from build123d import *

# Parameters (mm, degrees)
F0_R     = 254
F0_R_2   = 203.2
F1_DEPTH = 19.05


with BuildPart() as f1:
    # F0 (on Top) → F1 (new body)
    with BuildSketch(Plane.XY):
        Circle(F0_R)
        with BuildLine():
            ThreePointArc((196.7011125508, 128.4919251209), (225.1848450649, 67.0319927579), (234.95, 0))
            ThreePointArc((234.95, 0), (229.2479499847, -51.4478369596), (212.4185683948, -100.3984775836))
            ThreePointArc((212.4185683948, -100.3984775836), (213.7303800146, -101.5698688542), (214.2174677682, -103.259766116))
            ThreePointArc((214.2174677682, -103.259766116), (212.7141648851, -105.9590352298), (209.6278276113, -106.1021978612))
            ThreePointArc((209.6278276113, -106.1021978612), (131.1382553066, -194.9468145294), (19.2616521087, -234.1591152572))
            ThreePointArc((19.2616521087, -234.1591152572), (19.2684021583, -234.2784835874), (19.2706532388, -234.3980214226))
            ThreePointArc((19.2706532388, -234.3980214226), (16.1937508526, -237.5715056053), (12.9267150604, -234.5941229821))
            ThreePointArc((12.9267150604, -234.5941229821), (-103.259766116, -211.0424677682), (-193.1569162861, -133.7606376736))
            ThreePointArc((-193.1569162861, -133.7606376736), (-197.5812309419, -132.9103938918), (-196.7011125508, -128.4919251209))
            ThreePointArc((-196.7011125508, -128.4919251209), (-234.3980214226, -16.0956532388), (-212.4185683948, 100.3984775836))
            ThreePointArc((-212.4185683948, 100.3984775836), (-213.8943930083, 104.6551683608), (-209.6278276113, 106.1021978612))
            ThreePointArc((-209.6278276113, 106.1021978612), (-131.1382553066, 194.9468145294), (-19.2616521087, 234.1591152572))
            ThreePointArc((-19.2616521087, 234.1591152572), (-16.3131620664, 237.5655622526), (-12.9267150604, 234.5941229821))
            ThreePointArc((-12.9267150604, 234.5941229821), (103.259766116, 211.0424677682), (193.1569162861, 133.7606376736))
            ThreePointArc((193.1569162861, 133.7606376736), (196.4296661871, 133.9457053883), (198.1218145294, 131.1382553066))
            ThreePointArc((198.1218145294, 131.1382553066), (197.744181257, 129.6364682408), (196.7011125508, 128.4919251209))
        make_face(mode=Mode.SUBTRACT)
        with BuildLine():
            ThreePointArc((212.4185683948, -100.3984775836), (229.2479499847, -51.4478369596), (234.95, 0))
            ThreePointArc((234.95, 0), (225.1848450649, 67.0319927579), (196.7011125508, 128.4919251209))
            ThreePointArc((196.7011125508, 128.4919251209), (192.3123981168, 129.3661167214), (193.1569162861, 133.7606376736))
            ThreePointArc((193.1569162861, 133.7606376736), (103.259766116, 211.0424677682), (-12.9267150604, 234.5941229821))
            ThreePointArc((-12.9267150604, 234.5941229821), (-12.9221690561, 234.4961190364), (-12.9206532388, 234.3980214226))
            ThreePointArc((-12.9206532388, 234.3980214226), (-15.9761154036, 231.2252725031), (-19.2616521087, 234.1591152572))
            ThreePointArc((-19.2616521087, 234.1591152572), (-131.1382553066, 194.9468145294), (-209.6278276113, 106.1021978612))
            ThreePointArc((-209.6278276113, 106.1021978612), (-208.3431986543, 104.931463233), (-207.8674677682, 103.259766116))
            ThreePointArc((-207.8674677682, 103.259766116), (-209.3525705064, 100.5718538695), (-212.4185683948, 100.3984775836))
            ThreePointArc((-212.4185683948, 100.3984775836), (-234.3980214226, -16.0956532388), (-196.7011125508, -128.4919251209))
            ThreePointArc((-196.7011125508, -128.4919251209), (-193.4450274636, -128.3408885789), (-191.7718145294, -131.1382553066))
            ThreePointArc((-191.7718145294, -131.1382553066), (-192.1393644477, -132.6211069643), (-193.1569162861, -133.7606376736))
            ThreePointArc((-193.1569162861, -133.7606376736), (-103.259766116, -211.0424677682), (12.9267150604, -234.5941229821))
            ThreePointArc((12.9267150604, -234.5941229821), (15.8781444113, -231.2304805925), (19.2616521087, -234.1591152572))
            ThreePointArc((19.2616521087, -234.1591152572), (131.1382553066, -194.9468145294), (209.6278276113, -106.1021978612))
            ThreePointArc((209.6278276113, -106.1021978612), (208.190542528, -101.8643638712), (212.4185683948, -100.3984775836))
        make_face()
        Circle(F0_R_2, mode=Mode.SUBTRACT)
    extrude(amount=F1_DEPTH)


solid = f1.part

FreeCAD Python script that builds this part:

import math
import FreeCAD as App
import Part
import Sketcher

V = App.Vector
Q = App.Units.Quantity

doc = App.newDocument("Part")
body = doc.addObject("PartDesign::Body", "Body")

sketch1 = body.newObject("Sketcher::SketchObject", "Sketch")
sketch1.AttachmentSupport = (doc.getObject("XY_Plane"), [""])
sketch1.MapMode = "FlatFace"
sketch1.addGeometry(Part.Circle(V(0, 0, 0), V(0, 0, 1), 254), False)
sketch1.addGeometry(Part.ArcOfCircle(Part.Circle(V(-194.95, -131.14, 0), V(0, 0, 1), 3.17), math.radians(124), math.radians(304)), False)
sketch1.addGeometry(Part.ArcOfCircle(Part.Circle(V(-194.95, -131.14, 0), V(0, 0, 1), 3.17), math.radians(0), math.radians(124)), False)
sketch1.addGeometry(Part.ArcOfCircle(Part.Circle(V(-194.95, -131.14, 0), V(0, 0, 1), 3.17), math.radians(-56), math.radians(0)), False)
sketch1.addGeometry(Part.ArcOfCircle(Part.Circle(V(16.1, -234.4, 0), V(0, 0, 1), 3.17), math.radians(-176), math.radians(0)), False)
sketch1.addGeometry(Part.ArcOfCircle(Part.Circle(V(16.1, -234.4, 0), V(0, 0, 1), 3.17), math.radians(4), math.radians(184)), False)
sketch1.addGeometry(Part.ArcOfCircle(Part.Circle(V(16.1, -234.4, 0), V(0, 0, 1), 3.17), math.radians(0), math.radians(4.32)), False)
sketch1.addGeometry(Part.Circle(V(0, 0, 0), V(0, 0, 1), 203.2), False)
sketch1.addGeometry(Part.ArcOfCircle(Part.Circle(V(211.04, -103.26, 0), V(0, 0, 1), 3.17), math.radians(-116), math.radians(0)), False)
sketch1.addGeometry(Part.ArcOfCircle(Part.Circle(V(211.04, -103.26, 0), V(0, 0, 1), 3.17), math.radians(64), math.radians(244)), False)
sketch1.addGeometry(Part.ArcOfCircle(Part.Circle(V(211.04, -103.26, 0), V(0, 0, 1), 3.17), math.radians(0), math.radians(64)), False)
sketch1.addGeometry(Part.ArcOfCircle(Part.Circle(V(-211.04, 103.26, 0), V(0, 0, 1), 3.17), math.radians(64), math.radians(244)), False)
sketch1.addGeometry(Part.ArcOfCircle(Part.Circle(V(-211.04, 103.26, 0), V(0, 0, 1), 3.17), math.radians(0), math.radians(64)), False)
sketch1.addGeometry(Part.ArcOfCircle(Part.Circle(V(-211.04, 103.26, 0), V(0, 0, 1), 3.17), math.radians(-116), math.radians(0)), False)
sketch1.addGeometry(Part.ArcOfCircle(Part.Circle(V(-16.1, 234.4, 0), V(0, 0, 1), 3.17), math.radians(4), math.radians(184)), False)
sketch1.addGeometry(Part.ArcOfCircle(Part.Circle(V(-16.1, 234.4, 0), V(0, 0, 1), 3.18), math.radians(0), math.radians(3.54)), False)
sketch1.addGeometry(Part.ArcOfCircle(Part.Circle(V(-16.1, 234.4, 0), V(0, 0, 1), 3.17), math.radians(-176), math.radians(0)), False)
sketch1.addGeometry(Part.ArcOfCircle(Part.Circle(V(194.95, 131.14, 0), V(0, 0, 1), 3.17), math.radians(-56), math.radians(0)), False)
sketch1.addGeometry(Part.ArcOfCircle(Part.Circle(V(194.95, 131.14, 0), V(0, 0, 1), 3.17), math.radians(124), math.radians(304)), False)
sketch1.addGeometry(Part.ArcOfCircle(Part.Circle(V(194.95, 131.14, 0), V(0, 0, 1), 3.17), math.radians(0), math.radians(124)), False)
sketch1.addConstraint(Sketcher.Constraint("Tangent", 1, 1, 2, 2))
sketch1.addConstraint(Sketcher.Constraint("Tangent", 2, 1, 3, 2))
sketch1.addConstraint(Sketcher.Constraint("Tangent", 3, 1, 1, 2))
sketch1.addConstraint(Sketcher.Constraint("Tangent", 4, 1, 5, 2))
sketch1.addConstraint(Sketcher.Constraint("Tangent", 5, 1, 6, 2))
sketch1.addConstraint(Sketcher.Constraint("Tangent", 6, 1, 4, 2))
sketch1.addConstraint(Sketcher.Constraint("Tangent", 8, 1, 9, 2))
sketch1.addConstraint(Sketcher.Constraint("Tangent", 9, 1, 10, 2))
sketch1.addConstraint(Sketcher.Constraint("Tangent", 10, 1, 8, 2))
sketch1.addConstraint(Sketcher.Constraint("Tangent", 11, 1, 12, 2))
sketch1.addConstraint(Sketcher.Constraint("Tangent", 12, 1, 13, 2))
sketch1.addConstraint(Sketcher.Constraint("Tangent", 13, 1, 11, 2))
sketch1.addConstraint(Sketcher.Constraint("Tangent", 14, 1, 15, 2))
sketch1.addConstraint(Sketcher.Constraint("Tangent", 15, 1, 16, 2))
sketch1.addConstraint(Sketcher.Constraint("Tangent", 16, 1, 14, 2))
sketch1.addConstraint(Sketcher.Constraint("Tangent", 17, 1, 18, 2))
sketch1.addConstraint(Sketcher.Constraint("Tangent", 18, 1, 19, 2))
sketch1.addConstraint(Sketcher.Constraint("Tangent", 19, 1, 17, 2))
sketch1.addConstraint(Sketcher.Constraint("Coincident", 0, 3, -1, 1))
sketch1.addConstraint(Sketcher.Constraint("Coincident", 7, 3, -1, 1))
sketch1.addConstraint(Sketcher.Constraint("Equal", 3, 4))
sketch1.addConstraint(Sketcher.Constraint("Equal", 6, 8))
sketch1.addConstraint(Sketcher.Constraint("Equal", 10, 11))
sketch1.addConstraint(Sketcher.Constraint("Equal", 13, 14))
sketch1.addConstraint(Sketcher.Constraint("Equal", 16, 17))
sketch1.addConstraint(Sketcher.Constraint("Symmetric", 8, 3, 11, 3, -1, 1))
sketch1.addConstraint(Sketcher.Constraint("Symmetric", 4, 3, 14, 3, -1, 1))
sketch1.addConstraint(Sketcher.Constraint("Symmetric", 1, 3, 17, 3, -1, 1))
sketch1.addConstraint(Sketcher.Constraint("Horizontal", 3, 3, 2, 1))
sketch1.addConstraint(Sketcher.Constraint("Horizontal", 5, 3, 6, 1))
sketch1.addConstraint(Sketcher.Constraint("Horizontal", 9, 3, 10, 1))
sketch1.addConstraint(Sketcher.Constraint("Horizontal", 13, 3, 12, 1))
sketch1.addConstraint(Sketcher.Constraint("Horizontal", 16, 3, 15, 1))
sketch1.addConstraint(Sketcher.Constraint("Horizontal", 18, 3, 19, 1))
sketch1.addConstraint(Sketcher.Constraint("Diameter", 0, Q("20 in")))
sketch1.addConstraint(Sketcher.Constraint("Diameter", 7, Q("16 in")))
sketch1.addConstraint(Sketcher.Constraint("Radius", 1, Q("0.125 in")))
sketch1.addConstraint(Sketcher.Constraint("DistanceX", 1, 1, 3, 3, 1.754298))
sketch1.addConstraint(Sketcher.Constraint("DistanceX", 3, 1, 2, 1, 1.385102))
sketch1.addConstraint(Sketcher.Constraint("DistanceY", 4, 1, 4, 3, 0.196102))
sketch1.addConstraint(Sketcher.Constraint("DistanceX", 6, 3, 5, 1, 3.165999))
sketch1.addConstraint(Sketcher.Constraint("DistanceX", 8, 3, 9, 1, 1.376101))
sketch1.addConstraint(Sketcher.Constraint("DistanceX", 13, 1, 11, 3, 1.376101))
sketch1.addConstraint(Sketcher.Constraint("DistanceY", 14, 3, 14, 1, 0.196102))
sketch1.addConstraint(Sketcher.Constraint("DistanceX", 16, 1, 15, 3, 3.165999))
sketch1.addConstraint(Sketcher.Constraint("DistanceX", 17, 3, 17, 1, 1.754298))
sketch1.addConstraint(Sketcher.Constraint("DistanceX", 18, 1, 17, 3, 1.789898))
sketch1.addConstraint(Sketcher.Constraint("DistanceY", 4, 3, -1, 1, 234.398021))
sketch1.addConstraint(Sketcher.Constraint("DistanceX", -1, 1, 9, 1, 212.418568))
sketch1.addConstraint(Sketcher.Constraint("DistanceY", 3, 3, 11, 3, 234.398021))
sketch1.addConstraint(Sketcher.Constraint("DistanceX", 2, 1, 4, 1, 204.69853))
sketch1.addConstraint(Sketcher.Constraint("DistanceY", 5, 1, 8, 3, 130.899349))
sketch1.addConstraint(Sketcher.Constraint("DistanceX", 8, 1, 8, 3, 1.41464))
sketch1.addConstraint(Sketcher.Constraint("DistanceX", 11, 3, 11, 1, 1.41464))
sketch1.addConstraint(Sketcher.Constraint("DistanceX", 1, 3, -1, 1, 194.946815))
pad1 = body.newObject("PartDesign::Pad", "Pad")
pad1.Profile = sketch1
pad1.Length = Q("0.75 in")

doc.recompute()
